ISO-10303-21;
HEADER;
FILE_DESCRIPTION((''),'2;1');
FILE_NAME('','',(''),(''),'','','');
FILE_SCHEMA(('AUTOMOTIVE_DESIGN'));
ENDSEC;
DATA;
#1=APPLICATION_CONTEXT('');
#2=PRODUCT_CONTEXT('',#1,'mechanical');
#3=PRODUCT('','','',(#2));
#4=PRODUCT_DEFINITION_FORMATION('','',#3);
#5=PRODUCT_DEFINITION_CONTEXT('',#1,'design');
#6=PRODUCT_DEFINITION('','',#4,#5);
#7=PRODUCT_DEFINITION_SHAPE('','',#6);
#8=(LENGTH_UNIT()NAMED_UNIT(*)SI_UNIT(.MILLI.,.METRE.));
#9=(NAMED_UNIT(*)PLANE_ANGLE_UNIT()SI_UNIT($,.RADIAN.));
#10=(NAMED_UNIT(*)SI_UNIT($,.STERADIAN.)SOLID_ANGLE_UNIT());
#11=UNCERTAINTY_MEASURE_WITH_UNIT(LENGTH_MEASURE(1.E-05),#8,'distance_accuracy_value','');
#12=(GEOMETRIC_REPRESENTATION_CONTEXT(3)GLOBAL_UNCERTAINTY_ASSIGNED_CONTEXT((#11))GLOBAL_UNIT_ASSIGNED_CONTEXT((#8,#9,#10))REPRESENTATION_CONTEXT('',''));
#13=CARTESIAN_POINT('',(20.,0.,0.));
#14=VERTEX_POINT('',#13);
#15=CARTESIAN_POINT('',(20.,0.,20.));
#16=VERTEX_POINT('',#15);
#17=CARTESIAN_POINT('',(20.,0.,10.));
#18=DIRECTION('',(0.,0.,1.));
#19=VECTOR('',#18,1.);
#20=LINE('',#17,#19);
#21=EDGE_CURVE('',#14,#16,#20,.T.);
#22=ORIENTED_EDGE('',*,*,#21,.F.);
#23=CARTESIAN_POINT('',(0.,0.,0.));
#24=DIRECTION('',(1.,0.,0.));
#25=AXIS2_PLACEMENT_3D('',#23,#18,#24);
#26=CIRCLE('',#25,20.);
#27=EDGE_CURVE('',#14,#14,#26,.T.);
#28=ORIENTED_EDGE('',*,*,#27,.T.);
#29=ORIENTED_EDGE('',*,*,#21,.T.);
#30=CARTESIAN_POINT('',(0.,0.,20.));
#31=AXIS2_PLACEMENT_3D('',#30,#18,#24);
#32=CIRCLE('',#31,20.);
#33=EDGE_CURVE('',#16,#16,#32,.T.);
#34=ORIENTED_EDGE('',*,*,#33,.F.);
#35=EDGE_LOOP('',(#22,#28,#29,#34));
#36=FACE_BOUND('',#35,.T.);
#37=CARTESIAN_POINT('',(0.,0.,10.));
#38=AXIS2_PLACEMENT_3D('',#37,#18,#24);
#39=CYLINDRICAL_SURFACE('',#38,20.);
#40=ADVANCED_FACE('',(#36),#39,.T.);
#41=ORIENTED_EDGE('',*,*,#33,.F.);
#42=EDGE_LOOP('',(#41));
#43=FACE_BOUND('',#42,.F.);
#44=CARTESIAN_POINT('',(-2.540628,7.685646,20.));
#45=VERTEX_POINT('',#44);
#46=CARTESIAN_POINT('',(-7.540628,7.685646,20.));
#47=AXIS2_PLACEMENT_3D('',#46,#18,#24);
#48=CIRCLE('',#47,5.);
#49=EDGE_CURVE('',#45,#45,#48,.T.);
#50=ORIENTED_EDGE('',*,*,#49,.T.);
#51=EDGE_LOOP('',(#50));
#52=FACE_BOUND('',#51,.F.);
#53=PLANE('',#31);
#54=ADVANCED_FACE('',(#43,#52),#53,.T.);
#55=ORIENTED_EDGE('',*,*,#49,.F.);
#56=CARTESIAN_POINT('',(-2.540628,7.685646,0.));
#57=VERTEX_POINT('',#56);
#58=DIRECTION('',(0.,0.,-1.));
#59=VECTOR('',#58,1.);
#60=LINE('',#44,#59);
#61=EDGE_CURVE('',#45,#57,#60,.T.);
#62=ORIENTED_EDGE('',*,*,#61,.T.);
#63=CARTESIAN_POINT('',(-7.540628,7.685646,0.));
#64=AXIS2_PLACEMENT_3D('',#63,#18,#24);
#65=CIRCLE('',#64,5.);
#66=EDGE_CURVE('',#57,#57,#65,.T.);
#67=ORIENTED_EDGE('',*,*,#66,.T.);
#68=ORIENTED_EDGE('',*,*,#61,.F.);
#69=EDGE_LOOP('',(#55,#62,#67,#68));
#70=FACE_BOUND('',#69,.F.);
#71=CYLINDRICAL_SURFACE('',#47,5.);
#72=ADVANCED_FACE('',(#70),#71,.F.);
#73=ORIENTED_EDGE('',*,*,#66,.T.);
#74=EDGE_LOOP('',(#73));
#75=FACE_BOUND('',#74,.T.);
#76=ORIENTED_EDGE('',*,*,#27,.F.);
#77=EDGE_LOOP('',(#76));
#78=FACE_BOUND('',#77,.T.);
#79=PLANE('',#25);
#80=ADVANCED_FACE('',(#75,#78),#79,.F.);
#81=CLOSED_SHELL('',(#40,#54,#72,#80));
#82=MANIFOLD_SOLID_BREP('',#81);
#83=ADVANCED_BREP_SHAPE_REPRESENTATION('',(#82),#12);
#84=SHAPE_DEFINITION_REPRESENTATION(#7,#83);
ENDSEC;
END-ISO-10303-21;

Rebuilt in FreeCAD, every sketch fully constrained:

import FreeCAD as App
import Part
import Sketcher
from FreeCAD import Vector

doc = App.newDocument("Part")
params = doc.addObject("Spreadsheet::Sheet", "Params")
for row, (alias, value) in enumerate([
    ("sketch1_width", "20 mm"),
    ("revolution_angle", "360 deg"),
    ("sketch2_diameter", "10 mm"),
    ("pocket1_length", "40 mm"),
], start=1):
    params.set(f"A{row}", alias)
    params.set(f"B{row}", "=" + value)
    params.setAlias(f"B{row}", alias)

body = doc.addObject("PartDesign::Body", "Body")

# Sketch on XZ plane
sketch1 = doc.addObject("Sketcher::SketchObject", "Sketch")
body.addObject(sketch1)
sketch1.AttachmentSupport = (doc.XZ_Plane, [""])
sketch1.MapMode = "FlatFace"
sketch1.addGeometry([
    Part.LineSegment(Vector(0, 20, 0), Vector(0, 0, 0)),
    Part.LineSegment(Vector(0, 0, 0), Vector(20, 0, 0)),
    Part.LineSegment(Vector(20, 0, 0), Vector(20, 20, 0)),
    Part.LineSegment(Vector(20, 20, 0), Vector(0, 20, 0)),
], False)
sketch1.addConstraint([
    Sketcher.Constraint("Coincident", 0, 2, 1, 1),
    Sketcher.Constraint("Coincident", 1, 2, 2, 1),
    Sketcher.Constraint("Coincident", 2, 2, 3, 1),
    Sketcher.Constraint("Coincident", 3, 2, 0, 1),
    Sketcher.Constraint("Vertical", 0),
    Sketcher.Constraint("Horizontal", 1),
    Sketcher.Constraint("Vertical", 2),
    Sketcher.Constraint("Horizontal", 3),
    Sketcher.Constraint("Coincident", 0, 2, -1, 1),
    Sketcher.Constraint("Equal", 3, 0),
    Sketcher.Constraint("DistanceX", 1, 1, 1, 2, 20.0),
])
sketch1.setExpression("Constraints[10]", "Params.sketch1_width")
revolution = doc.addObject("PartDesign::Revolution", "Revolution")
body.addObject(revolution)
revolution.Profile = sketch1
revolution.ReferenceAxis = (sketch1, ["V_Axis"])
revolution.setExpression("Angle", "Params.revolution_angle")

# Sketch on XY plane
sketch2 = doc.addObject("Sketcher::SketchObject", "Sketch001")
body.addObject(sketch2)
sketch2.AttachmentSupport = (doc.XY_Plane, [""])
sketch2.MapMode = "FlatFace"
sketch2.AttachmentOffset = App.Placement(Vector(0, 0, 20), App.Rotation())
sketch2.addGeometry(Part.Circle(Vector(-8, 8, 0), Vector(0, 0, 1), 5), False)
sketch2.addConstraint([
    Sketcher.Constraint("Diameter", 0, 10.0),
    Sketcher.Constraint("DistanceX", 0, 3, -1, 1, 7.540628),
    Sketcher.Constraint("DistanceY", -1, 1, 0, 3, 7.685646),
])
sketch2.setExpression("Constraints[0]", "Params.sketch2_diameter")
pocket1 = doc.addObject("PartDesign::Pocket", "Pocket")
body.addObject(pocket1)
pocket1.Profile = sketch2
pocket1.setExpression("Length", "Params.pocket1_length")

doc.recompute()
